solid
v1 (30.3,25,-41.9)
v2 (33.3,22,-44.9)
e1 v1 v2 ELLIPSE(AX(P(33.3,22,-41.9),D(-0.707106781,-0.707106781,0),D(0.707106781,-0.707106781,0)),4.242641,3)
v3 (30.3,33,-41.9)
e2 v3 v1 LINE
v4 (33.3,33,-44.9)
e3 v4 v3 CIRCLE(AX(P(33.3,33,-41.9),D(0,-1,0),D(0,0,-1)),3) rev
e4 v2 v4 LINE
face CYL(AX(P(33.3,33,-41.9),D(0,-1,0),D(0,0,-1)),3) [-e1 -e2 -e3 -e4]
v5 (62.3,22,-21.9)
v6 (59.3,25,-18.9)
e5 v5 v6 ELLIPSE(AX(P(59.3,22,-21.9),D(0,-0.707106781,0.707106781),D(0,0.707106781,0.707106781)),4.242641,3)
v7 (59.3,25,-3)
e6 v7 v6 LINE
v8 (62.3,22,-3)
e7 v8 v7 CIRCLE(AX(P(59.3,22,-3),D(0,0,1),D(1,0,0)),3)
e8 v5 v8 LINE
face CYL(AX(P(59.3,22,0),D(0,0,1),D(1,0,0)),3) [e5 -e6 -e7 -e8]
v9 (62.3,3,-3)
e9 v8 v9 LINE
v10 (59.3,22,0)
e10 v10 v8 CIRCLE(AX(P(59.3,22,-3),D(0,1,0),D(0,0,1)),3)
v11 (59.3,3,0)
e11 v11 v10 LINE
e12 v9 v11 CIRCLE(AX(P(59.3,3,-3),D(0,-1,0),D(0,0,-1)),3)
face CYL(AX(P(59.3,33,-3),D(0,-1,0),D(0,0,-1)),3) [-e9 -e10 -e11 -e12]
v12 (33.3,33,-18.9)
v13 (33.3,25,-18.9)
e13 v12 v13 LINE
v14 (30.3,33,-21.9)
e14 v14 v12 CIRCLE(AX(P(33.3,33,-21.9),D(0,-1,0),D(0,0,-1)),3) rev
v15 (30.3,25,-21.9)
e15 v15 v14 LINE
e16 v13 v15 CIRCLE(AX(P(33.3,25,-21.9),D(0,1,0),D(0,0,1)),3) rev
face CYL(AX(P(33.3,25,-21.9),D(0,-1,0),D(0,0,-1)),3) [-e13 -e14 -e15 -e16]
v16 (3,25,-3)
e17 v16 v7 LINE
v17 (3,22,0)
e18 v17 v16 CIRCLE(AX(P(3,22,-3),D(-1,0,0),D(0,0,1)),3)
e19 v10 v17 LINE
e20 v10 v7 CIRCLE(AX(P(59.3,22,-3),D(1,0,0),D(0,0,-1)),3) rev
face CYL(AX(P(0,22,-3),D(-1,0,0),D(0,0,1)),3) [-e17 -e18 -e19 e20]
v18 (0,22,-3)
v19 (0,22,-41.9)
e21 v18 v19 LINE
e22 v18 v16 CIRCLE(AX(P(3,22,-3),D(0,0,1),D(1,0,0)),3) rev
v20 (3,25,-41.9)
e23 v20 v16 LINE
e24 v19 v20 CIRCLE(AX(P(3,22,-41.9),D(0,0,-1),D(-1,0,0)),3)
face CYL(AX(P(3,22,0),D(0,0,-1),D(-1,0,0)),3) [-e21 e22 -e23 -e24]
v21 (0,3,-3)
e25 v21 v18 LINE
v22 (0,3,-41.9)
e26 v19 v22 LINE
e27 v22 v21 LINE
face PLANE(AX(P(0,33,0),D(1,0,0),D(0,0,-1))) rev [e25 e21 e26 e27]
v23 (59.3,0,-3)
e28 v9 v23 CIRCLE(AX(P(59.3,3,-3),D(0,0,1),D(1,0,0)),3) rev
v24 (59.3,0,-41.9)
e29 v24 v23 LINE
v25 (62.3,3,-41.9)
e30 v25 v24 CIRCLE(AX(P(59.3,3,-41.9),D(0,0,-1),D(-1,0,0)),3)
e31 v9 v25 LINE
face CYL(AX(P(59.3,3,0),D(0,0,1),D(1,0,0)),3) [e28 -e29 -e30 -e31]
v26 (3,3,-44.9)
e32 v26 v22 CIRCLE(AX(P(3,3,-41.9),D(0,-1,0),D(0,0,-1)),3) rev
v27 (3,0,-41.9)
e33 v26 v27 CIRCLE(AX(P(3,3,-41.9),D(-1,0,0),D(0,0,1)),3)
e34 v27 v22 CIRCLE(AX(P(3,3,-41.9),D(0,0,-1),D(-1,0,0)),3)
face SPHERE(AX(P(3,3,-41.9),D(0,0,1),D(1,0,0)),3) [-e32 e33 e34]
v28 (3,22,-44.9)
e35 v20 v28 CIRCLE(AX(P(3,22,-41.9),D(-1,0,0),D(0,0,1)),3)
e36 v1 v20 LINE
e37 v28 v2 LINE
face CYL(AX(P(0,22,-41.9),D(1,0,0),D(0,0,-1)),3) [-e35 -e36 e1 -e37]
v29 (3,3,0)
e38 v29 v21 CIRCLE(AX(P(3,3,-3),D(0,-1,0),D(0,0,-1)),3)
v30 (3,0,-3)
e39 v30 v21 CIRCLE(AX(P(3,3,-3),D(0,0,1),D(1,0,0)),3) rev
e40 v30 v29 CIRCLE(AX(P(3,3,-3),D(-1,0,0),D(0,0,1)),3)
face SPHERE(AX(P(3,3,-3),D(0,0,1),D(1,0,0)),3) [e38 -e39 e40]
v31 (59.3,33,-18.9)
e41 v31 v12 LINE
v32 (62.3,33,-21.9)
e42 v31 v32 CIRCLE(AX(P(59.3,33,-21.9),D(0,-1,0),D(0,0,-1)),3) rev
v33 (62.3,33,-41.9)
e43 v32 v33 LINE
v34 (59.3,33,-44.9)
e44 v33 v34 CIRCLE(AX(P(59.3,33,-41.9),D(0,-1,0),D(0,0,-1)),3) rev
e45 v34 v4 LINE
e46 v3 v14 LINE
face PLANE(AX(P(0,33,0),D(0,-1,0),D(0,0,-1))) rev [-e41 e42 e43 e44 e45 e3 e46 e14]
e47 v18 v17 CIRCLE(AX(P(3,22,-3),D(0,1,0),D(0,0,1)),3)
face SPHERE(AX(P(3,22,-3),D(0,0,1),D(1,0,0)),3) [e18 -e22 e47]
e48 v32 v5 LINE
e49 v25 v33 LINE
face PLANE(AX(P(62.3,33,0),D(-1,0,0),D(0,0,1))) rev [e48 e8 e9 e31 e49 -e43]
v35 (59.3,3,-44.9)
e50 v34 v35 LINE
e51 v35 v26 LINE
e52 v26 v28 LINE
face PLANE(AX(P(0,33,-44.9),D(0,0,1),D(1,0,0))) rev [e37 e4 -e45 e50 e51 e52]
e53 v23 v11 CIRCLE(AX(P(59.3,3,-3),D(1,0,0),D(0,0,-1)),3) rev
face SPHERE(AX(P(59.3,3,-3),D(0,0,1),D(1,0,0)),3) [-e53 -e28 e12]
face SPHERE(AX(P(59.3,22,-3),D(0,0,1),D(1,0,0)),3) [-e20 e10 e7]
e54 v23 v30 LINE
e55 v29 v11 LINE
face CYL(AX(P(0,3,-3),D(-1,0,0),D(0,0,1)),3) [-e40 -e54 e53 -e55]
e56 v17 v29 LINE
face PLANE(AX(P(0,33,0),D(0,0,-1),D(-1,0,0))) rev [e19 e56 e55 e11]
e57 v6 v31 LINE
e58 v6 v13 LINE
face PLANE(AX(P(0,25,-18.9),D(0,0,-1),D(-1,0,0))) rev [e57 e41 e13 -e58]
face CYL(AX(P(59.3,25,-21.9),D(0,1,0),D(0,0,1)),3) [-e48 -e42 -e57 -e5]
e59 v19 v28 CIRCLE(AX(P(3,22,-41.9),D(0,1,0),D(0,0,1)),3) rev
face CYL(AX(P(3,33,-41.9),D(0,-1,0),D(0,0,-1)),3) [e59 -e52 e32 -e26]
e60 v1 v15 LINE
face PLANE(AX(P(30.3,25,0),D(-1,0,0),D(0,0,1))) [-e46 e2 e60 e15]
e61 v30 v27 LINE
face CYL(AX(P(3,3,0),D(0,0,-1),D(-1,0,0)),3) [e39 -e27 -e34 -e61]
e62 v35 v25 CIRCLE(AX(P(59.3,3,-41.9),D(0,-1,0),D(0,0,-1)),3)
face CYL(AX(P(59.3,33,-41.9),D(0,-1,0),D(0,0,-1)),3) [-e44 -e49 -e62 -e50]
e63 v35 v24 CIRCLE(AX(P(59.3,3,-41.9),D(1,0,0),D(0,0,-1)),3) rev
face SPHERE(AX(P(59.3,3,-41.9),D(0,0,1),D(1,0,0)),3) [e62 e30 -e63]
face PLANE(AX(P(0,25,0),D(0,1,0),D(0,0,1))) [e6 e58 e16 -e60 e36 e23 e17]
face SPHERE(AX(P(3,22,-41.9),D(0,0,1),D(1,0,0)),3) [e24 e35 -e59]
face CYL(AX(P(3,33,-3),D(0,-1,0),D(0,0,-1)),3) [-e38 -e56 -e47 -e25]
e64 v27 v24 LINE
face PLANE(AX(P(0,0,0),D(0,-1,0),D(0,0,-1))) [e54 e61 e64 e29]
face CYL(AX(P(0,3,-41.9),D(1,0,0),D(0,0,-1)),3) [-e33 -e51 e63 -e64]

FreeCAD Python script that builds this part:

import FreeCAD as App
import Part
import Sketcher
from FreeCAD import Vector
Q = App.Units.Quantity


def edges_at(feature, points):
    """Names of the edges that pass closest to the given points."""
    edges = feature.Shape.Edges
    near = lambda p: min(range(len(edges)), key=lambda i: edges[i].distToShape(Part.Vertex(*p))[0])
    return sorted({f"Edge{near(p) + 1}" for p in points})


def add_polygon(sketch, points):
    """Adds a closed chain of lines whose ends are joined by coincident constraints."""
    first, n = sketch.GeometryCount, len(points)
    for a, b in zip(points, points[1:] + points[:1]):
        sketch.addGeometry(Part.LineSegment(App.Vector(*a, 0), App.Vector(*b, 0)), False)
    for i in range(n):
        sketch.addConstraint(Sketcher.Constraint("Coincident", first + i, 2, first + (i + 1) % n, 1))

doc = App.newDocument("Part")
body = doc.addObject("PartDesign::Body", "Body")

# Sketch on XZ plane
sketch1 = doc.addObject("Sketcher::SketchObject", "Sketch")
body.addObject(sketch1)
sketch1.AttachmentSupport = (doc.XZ_Plane, [""])
sketch1.MapMode = "FlatFace"
add_polygon(sketch1, [(0, -45), (0, 0), (62, 0), (62, -45)])  # lines 0-3
sketch1.addConstraint([
    Sketcher.Constraint("Vertical", 0),
    Sketcher.Constraint("Horizontal", 1),
    Sketcher.Constraint("Vertical", 2),
    Sketcher.Constraint("Horizontal", 3),
    Sketcher.Constraint("Coincident", 0, 2, -1, 1),
    Sketcher.Constraint("DistanceX", 1, 1, 1, 2, Q("62.3 mm")),
    Sketcher.Constraint("DistanceY", 0, 1, 0, 2, Q("44.9 mm")),
])
pad1 = doc.addObject("PartDesign::Pad", "Pad")
body.addObject(pad1)
pad1.Profile = sketch1
pad1.Length = 33
pad1.Reversed = True

# Sketch on XZ plane
sketch2 = doc.addObject("Sketcher::SketchObject", "Sketch001")
body.addObject(sketch2)
sketch2.AttachmentSupport = (doc.XZ_Plane, [""])
sketch2.MapMode = "FlatFace"
sketch2.AttachmentOffset = App.Placement(Vector(0, 0, -33), App.Rotation())
add_polygon(sketch2, [(30, -19), (30, -45), (0, -45), (0, 0), (62, 0), (62, -19)])  # lines 0-5
sketch2.addConstraint([
    Sketcher.Constraint("Vertical", 0),
    Sketcher.Constraint("Horizontal", 1),
    Sketcher.Constraint("Vertical", 2),
    Sketcher.Constraint("Horizontal", 3),
    Sketcher.Constraint("Vertical", 4),
    Sketcher.Constraint("Horizontal", 5),
    Sketcher.Constraint("Coincident", 2, 2, -1, 1),
    Sketcher.Constraint("DistanceX", 5, 2, 5, 1, Q("32 mm")),
    Sketcher.Constraint("DistanceY", 0, 2, 0, 1, Q("26 mm")),
    Sketcher.Constraint("DistanceX", 1, 2, 1, 1, Q("30.3 mm")),
    Sketcher.Constraint("DistanceY", 2, 1, 2, 2, Q("44.9 mm")),
])
pocket1 = doc.addObject("PartDesign::Pocket", "Pocket")
body.addObject(pocket1)
pocket1.Profile = sketch2
pocket1.Length = 8
pocket1.Reversed = True
doc.recompute()

fillet = doc.addObject("PartDesign::Fillet", "Fillet")
body.addObject(fillet)
fillet.Base = (pocket1, edges_at(pocket1, [
    (0, 12.5, -44.9),
    (62.3, 12.5, 0),
    (0, 12.5, 0),
    (30.3, 29, -44.9),
    (30.3, 29, -18.9),
    (62.3, 25, -9.45),
    (62.3, 29, -18.9),
    (31.15, 25, 0),
    (0, 25, -22.45),
    (15.15, 25, -44.9),
    (31.15, 0, -44.9),
    (62.3, 0, -22.45),
    (31.15, 0, 0),
    (0, 0, -22.45),
    (62.3, 16.5, -44.9),
]))
fillet.Radius = 3

doc.recompute()
